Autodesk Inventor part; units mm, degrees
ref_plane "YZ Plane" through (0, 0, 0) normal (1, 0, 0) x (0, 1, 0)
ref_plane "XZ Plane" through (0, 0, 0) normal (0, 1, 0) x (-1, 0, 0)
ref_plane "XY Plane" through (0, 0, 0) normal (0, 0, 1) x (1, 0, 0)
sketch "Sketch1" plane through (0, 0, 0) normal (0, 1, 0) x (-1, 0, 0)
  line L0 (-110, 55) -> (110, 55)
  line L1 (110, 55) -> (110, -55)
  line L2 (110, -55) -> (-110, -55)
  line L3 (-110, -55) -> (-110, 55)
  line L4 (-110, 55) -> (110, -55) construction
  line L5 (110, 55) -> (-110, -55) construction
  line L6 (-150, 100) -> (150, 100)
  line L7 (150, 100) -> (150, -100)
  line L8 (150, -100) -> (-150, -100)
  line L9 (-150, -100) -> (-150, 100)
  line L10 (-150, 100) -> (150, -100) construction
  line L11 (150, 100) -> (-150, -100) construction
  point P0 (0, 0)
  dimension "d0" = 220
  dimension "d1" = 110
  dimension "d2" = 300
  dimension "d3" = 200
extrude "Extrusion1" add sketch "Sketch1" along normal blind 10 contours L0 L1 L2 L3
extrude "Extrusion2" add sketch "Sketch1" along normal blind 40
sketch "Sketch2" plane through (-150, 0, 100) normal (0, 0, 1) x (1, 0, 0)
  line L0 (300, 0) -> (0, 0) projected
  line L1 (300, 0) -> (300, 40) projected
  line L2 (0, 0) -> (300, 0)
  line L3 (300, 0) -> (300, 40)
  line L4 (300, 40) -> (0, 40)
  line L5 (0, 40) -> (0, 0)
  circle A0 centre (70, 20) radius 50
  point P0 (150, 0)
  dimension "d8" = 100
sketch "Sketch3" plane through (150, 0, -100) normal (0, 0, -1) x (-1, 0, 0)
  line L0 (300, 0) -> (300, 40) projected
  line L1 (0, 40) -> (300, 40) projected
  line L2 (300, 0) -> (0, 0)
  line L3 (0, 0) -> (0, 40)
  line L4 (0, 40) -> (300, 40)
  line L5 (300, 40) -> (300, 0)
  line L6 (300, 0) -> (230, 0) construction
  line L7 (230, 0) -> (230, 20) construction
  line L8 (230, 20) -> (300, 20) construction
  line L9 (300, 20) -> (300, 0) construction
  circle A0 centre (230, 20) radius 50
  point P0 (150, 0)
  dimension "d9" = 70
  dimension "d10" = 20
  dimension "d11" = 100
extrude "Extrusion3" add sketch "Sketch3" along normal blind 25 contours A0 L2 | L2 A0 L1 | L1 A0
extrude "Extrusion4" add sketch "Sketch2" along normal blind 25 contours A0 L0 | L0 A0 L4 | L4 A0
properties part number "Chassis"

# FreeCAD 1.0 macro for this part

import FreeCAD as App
import Part
import Sketcher
Q = App.Units.Quantity


def add_polygon(sketch, points):
    """Adds a closed chain of lines whose ends are joined by coincident constraints."""
    first, n = sketch.GeometryCount, len(points)
    for a, b in zip(points, points[1:] + points[:1]):
        sketch.addGeometry(Part.LineSegment(App.Vector(*a, 0), App.Vector(*b, 0)), False)
    for i in range(n):
        sketch.addConstraint(Sketcher.Constraint("Coincident", first + i, 2, first + (i + 1) % n, 1))

doc = App.newDocument("Part")
body = doc.addObject("PartDesign::Body", "Body")

# Sketch on XZ plane
sketch1 = doc.addObject("Sketcher::SketchObject", "Sketch")
body.addObject(sketch1)
sketch1.AttachmentSupport = (doc.XZ_Plane, [""])
sketch1.MapMode = "FlatFace"
add_polygon(sketch1, [(-110, 55), (110, 55), (110, -55), (-110, -55)])  # lines 0-3
sketch1.addConstraint([
    Sketcher.Constraint("Horizontal", 0),
    Sketcher.Constraint("Vertical", 1),
    Sketcher.Constraint("Horizontal", 2),
    Sketcher.Constraint("Vertical", 3),
    Sketcher.Constraint("Symmetric", 0, 2, 2, 2, -1, 1),
    Sketcher.Constraint("DistanceX", 0, 1, 0, 2, Q("220 mm")),
    Sketcher.Constraint("DistanceY", 1, 2, 1, 1, Q("110 mm")),
])
pad1 = doc.addObject("PartDesign::Pad", "Pad")
body.addObject(pad1)
pad1.Profile = sketch1
pad1.Length = 10
pad1.Reversed = True

# Sketch on XZ plane
sketch2 = doc.addObject("Sketcher::SketchObject", "Sketch001")
body.addObject(sketch2)
sketch2.AttachmentSupport = (doc.XZ_Plane, [""])
sketch2.MapMode = "FlatFace"
add_polygon(sketch2, [(-150, 100), (150, 100), (150, -100), (-150, -100)])  # lines 0-3
add_polygon(sketch2, [(110, -55), (110, 55), (-110, 55), (-110, -55)])  # lines 4-7
sketch2.addConstraint([
    Sketcher.Constraint("Horizontal", 0),
    Sketcher.Constraint("Vertical", 1),
    Sketcher.Constraint("Horizontal", 2),
    Sketcher.Constraint("Vertical", 3),
    Sketcher.Constraint("Vertical", 4),
    Sketcher.Constraint("Horizontal", 5),
    Sketcher.Constraint("Vertical", 6),
    Sketcher.Constraint("Horizontal", 7),
    Sketcher.Constraint("Symmetric", 0, 2, 2, 2, -1, 1),
    Sketcher.Constraint("Symmetric", 4, 2, 6, 2, -1, 1),
    Sketcher.Constraint("DistanceX", 0, 1, 0, 2, Q("300 mm")),
    Sketcher.Constraint("DistanceX", 5, 2, 5, 1, Q("220 mm")),
    Sketcher.Constraint("DistanceY", 1, 2, 1, 1, Q("200 mm")),
    Sketcher.Constraint("DistanceY", 4, 1, 4, 2, Q("110 mm")),
])
pad2 = doc.addObject("PartDesign::Pad", "Pad001")
body.addObject(pad2)
pad2.Profile = sketch2
pad2.Length = 40
pad2.Reversed = True

# Sketch on XY plane
sketch3 = doc.addObject("Sketcher::SketchObject", "Sketch002")
body.addObject(sketch3)
sketch3.AttachmentSupport = (doc.XY_Plane, [""])
sketch3.MapMode = "FlatFace"
sketch3.AttachmentOffset = App.Placement(App.Vector(0, 0, -100), App.Rotation())
sketch3.addGeometry(Part.Circle(App.Vector(-80, 20, 0), App.Vector(0, 0, 1), 50), False)
sketch3.addConstraint([
    Sketcher.Constraint("Diameter", 0, Q("100 mm")),
    Sketcher.Constraint("DistanceY", -1, 1, 0, 3, Q("20 mm")),
    Sketcher.Constraint("DistanceX", 0, 3, -1, 1, Q("80 mm")),
])
pad3 = doc.addObject("PartDesign::Pad", "Pad002")
body.addObject(pad3)
pad3.Profile = sketch3
pad3.Length = 25
pad3.Reversed = True

# Sketch on XY plane
sketch4 = doc.addObject("Sketcher::SketchObject", "Sketch003")
body.addObject(sketch4)
sketch4.AttachmentSupport = (doc.XY_Plane, [""])
sketch4.MapMode = "FlatFace"
sketch4.AttachmentOffset = App.Placement(App.Vector(0, 0, 100), App.Rotation())
sketch4.addGeometry(Part.Circle(App.Vector(-80, 20, 0), App.Vector(0, 0, 1), 50), False)
sketch4.addConstraint([
    Sketcher.Constraint("Diameter", 0, Q("100 mm")),
    Sketcher.Constraint("DistanceX", 0, 3, -1, 1, Q("80 mm")),
    Sketcher.Constraint("DistanceY", -1, 1, 0, 3, Q("20 mm")),
])
pad4 = doc.addObject("PartDesign::Pad", "Pad003")
body.addObject(pad4)
pad4.Profile = sketch4
pad4.Length = 25

doc.recompute()
